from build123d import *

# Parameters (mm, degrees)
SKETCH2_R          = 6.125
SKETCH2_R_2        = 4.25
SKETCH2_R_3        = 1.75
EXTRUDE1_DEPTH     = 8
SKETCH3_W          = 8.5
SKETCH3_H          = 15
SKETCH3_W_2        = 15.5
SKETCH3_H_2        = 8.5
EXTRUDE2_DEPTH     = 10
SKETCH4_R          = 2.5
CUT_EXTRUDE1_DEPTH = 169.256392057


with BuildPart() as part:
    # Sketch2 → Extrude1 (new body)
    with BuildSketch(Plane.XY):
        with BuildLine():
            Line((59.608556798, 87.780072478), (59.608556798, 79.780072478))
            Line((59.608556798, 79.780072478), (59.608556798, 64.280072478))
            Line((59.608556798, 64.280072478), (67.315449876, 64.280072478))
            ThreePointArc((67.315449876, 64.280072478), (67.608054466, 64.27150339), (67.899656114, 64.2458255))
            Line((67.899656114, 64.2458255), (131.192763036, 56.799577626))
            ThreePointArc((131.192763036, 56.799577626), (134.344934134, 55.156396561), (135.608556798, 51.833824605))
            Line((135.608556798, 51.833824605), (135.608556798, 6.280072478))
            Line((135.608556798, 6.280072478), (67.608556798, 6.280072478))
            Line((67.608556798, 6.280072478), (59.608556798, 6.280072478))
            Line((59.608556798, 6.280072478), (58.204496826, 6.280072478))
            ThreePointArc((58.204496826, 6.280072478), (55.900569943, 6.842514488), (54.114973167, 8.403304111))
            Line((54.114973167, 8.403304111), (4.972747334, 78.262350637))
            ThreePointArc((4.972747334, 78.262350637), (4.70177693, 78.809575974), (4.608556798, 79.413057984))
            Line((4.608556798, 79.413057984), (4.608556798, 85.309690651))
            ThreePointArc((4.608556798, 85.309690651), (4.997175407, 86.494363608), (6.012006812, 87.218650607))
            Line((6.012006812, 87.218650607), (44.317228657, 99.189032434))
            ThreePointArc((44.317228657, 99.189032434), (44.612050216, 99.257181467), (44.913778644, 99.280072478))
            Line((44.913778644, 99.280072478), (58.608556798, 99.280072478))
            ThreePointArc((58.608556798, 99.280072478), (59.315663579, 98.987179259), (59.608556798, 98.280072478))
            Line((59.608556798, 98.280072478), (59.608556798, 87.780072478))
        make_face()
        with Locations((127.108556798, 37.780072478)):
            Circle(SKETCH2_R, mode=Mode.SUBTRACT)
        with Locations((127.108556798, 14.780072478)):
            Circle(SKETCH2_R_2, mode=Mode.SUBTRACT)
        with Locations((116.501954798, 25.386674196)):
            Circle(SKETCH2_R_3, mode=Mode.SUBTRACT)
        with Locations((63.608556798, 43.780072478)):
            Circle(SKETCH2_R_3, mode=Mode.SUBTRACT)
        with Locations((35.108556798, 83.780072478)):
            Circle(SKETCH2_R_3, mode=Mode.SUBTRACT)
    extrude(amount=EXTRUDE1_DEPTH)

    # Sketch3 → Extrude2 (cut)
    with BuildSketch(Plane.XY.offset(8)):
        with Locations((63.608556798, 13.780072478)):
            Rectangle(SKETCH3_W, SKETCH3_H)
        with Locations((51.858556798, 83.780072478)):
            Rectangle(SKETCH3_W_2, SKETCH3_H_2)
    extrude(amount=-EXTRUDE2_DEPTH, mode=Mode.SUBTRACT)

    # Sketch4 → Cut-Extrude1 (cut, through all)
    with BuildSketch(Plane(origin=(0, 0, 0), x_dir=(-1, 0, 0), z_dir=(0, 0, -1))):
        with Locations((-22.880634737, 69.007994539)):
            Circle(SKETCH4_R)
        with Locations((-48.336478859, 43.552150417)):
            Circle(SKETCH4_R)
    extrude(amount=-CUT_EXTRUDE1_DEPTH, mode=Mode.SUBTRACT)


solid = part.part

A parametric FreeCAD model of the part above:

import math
import FreeCAD as App
import Part
import Sketcher
from FreeCAD import Vector
Q = App.Units.Quantity

doc = App.newDocument("Part")
params = doc.addObject("Spreadsheet::Sheet", "Params")
for row, (alias, value) in enumerate([
    ("sketch1_radius", "1 mm"),
    ("sketch1_radius2", "2 mm"),
    ("sketch1_radius3", "5 mm"),
    ("sketch1_diameter", "8.5 mm"),
    ("sketch1_diameter2", "3.5 mm"),
    ("pad1_length", "8 mm"),
    ("sketch2_height", "15 mm"),
    ("sketch2_width", "8.5 mm"),
    ("sketch2_width2", "15.5 mm"),
    ("pocket1_length", "10 mm"),
    ("sketch3_diameter", "5 mm"),
], start=1):
    params.set(f"A{row}", alias)
    params.set(f"B{row}", "=" + value)
    params.setAlias(f"B{row}", alias)

body = doc.addObject("PartDesign::Body", "Body")

sketch1 = body.newObject("Sketcher::SketchObject", "Sketch")
sketch1.AttachmentSupport = (doc.getObject("XY_Plane"), [""])
sketch1.MapMode = "FlatFace"
sketch1.addGeometry(Part.LineSegment(Vector(67.31545, 64.280072, 0), Vector(59.608557, 64.280072, 0)), False)
sketch1.addGeometry(Part.LineSegment(Vector(59.608557, 64.280072, 0), Vector(59.608557, 98.280072, 0)), False)
sketch1.addGeometry(Part.ArcOfCircle(Part.Circle(Vector(58.608557, 98.280072, 0), Vector(0, 0, 1), 1), math.radians(0), math.radians(90)), False)
sketch1.addGeometry(Part.LineSegment(Vector(58.608557, 99.280072, 0), Vector(44.913779, 99.280072, 0)), False)
sketch1.addGeometry(Part.ArcOfCircle(Part.Circle(Vector(44.913779, 97.280072, 0), Vector(0, 0, 1), 2), math.radians(90), math.radians(107.354024)), False)
sketch1.addGeometry(Part.LineSegment(Vector(44.317229, 99.189032, 0), Vector(6.012007, 87.218651, 0)), False)
sketch1.addGeometry(Part.ArcOfCircle(Part.Circle(Vector(6.608557, 85.309691, 0), Vector(0, 0, 1), 2), math.radians(107.354025), math.radians(180)), False)
sketch1.addGeometry(Part.LineSegment(Vector(4.608557, 85.309691, 0), Vector(4.608557, 79.413058, 0)), False)
sketch1.addGeometry(Part.ArcOfCircle(Part.Circle(Vector(6.608557, 79.413058, 0), Vector(0, 0, 1), 2), math.radians(180), math.radians(215.124404)), False)
sketch1.addGeometry(Part.LineSegment(Vector(4.972747, 78.262351, 0), Vector(54.114973, 8.403304, 0)), False)
sketch1.addGeometry(Part.ArcOfCircle(Part.Circle(Vector(58.204497, 11.280072, 0), Vector(0, 0, 1), 5), math.radians(-144.875596), math.radians(-90)), False)
sketch1.addGeometry(Part.LineSegment(Vector(58.204497, 6.280072, 0), Vector(135.608557, 6.280072, 0)), False)
sketch1.addGeometry(Part.LineSegment(Vector(135.608557, 6.280072, 0), Vector(135.608557, 51.833825, 0)), False)
sketch1.addGeometry(Part.ArcOfCircle(Part.Circle(Vector(130.608557, 51.833825, 0), Vector(0, 0, 1), 5), math.radians(0), math.radians(83.290163)), False)
sketch1.addGeometry(Part.LineSegment(Vector(131.192763, 56.799578, 0), Vector(67.899656, 64.245825, 0)), False)
sketch1.addGeometry(Part.ArcOfCircle(Part.Circle(Vector(67.31545, 59.280072, 0), Vector(0, 0, 1), 5), math.radians(83.290163), math.radians(90)), False)
sketch1.addGeometry(Part.Circle(Vector(127.108557, 14.780072, 0), Vector(0, 0, 1), 4.25), False)
sketch1.addGeometry(Part.Circle(Vector(116.501955, 25.386674, 0), Vector(0, 0, 1), 1.75), False)
sketch1.addGeometry(Part.Circle(Vector(127.108557, 37.780072, 0), Vector(0, 0, 1), 6.125), False)
sketch1.addGeometry(Part.Circle(Vector(63.608557, 43.780072, 0), Vector(0, 0, 1), 1.75), False)
sketch1.addGeometry(Part.Circle(Vector(35.108557, 83.780072, 0), Vector(0, 0, 1), 1.75), False)
sketch1.addConstraint(Sketcher.Constraint("Coincident", 0, 2, 1, 1))
sketch1.addConstraint(Sketcher.Constraint("Tangent", 1, 2, 2, 1))
sketch1.addConstraint(Sketcher.Constraint("Tangent", 2, 2, 3, 1))
sketch1.addConstraint(Sketcher.Constraint("Tangent", 3, 2, 4, 1))
sketch1.addConstraint(Sketcher.Constraint("Tangent", 4, 2, 5, 1))
sketch1.addConstraint(Sketcher.Constraint("Tangent", 5, 2, 6, 1))
sketch1.addConstraint(Sketcher.Constraint("Tangent", 6, 2, 7, 1))
sketch1.addConstraint(Sketcher.Constraint("Tangent", 7, 2, 8, 1))
sketch1.addConstraint(Sketcher.Constraint("Tangent", 8, 2, 9, 1))
sketch1.addConstraint(Sketcher.Constraint("Tangent", 9, 2, 10, 1))
sketch1.addConstraint(Sketcher.Constraint("Tangent", 10, 2, 11, 1))
sketch1.addConstraint(Sketcher.Constraint("Coincident", 11, 2, 12, 1))
sketch1.addConstraint(Sketcher.Constraint("Tangent", 12, 2, 13, 1))
sketch1.addConstraint(Sketcher.Constraint("Tangent", 13, 2, 14, 1))
sketch1.addConstraint(Sketcher.Constraint("Tangent", 14, 2, 15, 1))
sketch1.addConstraint(Sketcher.Constraint("Tangent", 15, 2, 0, 1))
sketch1.addConstraint(Sketcher.Constraint("Horizontal", 0))
sketch1.addConstraint(Sketcher.Constraint("Vertical", 1))
sketch1.addConstraint(Sketcher.Constraint("Horizontal", 3))
sketch1.addConstraint(Sketcher.Constraint("Vertical", 7))
sketch1.addConstraint(Sketcher.Constraint("Horizontal", 11))
sketch1.addConstraint(Sketcher.Constraint("Vertical", 12))
sketch1.addConstraint(Sketcher.Constraint("Equal", 4, 6))
sketch1.addConstraint(Sketcher.Constraint("Equal", 6, 8))
sketch1.addConstraint(Sketcher.Constraint("Equal", 10, 13))
sketch1.addConstraint(Sketcher.Constraint("Equal", 13, 15))
sketch1.addConstraint(Sketcher.Constraint("Equal", 17, 19))
sketch1.addConstraint(Sketcher.Constraint("Equal", 19, 20))
sketch1.addConstraint(Sketcher.Constraint("Vertical", 16, 3, 18, 3))
sketch1.addConstraint(Sketcher.Constraint("Radius", 2, Q("1 mm")))
sketch1.addConstraint(Sketcher.Constraint("Radius", 4, Q("2 mm")))
sketch1.addConstraint(Sketcher.Constraint("Radius", 10, Q("5 mm")))
sketch1.addConstraint(Sketcher.Constraint("Diameter", 16, Q("8.5 mm")))
sketch1.addConstraint(Sketcher.Constraint("Diameter", 17, Q("3.5 mm")))
sketch1.addConstraint(Sketcher.Constraint("Diameter", 18, Q("12.25 mm")))
sketch1.addConstraint(Sketcher.Constraint("DistanceY", 1, 1, 1, 2, Q("34 mm")))
sketch1.addConstraint(Sketcher.Constraint("DistanceX", 6, 3, 2, 3, Q("52 mm")))
sketch1.addConstraint(Sketcher.Constraint("DistanceY", 10, 3, 2, 3, Q("87 mm")))
sketch1.addConstraint(Sketcher.Constraint("DistanceX", 2, 3, 13, 3, Q("72 mm")))
sketch1.addConstraint(Sketcher.Constraint("DistanceY", 16, 3, 18, 3, Q("23 mm")))
sketch1.addConstraint(Sketcher.Constraint("DistanceX", 2, 3, 19, 3, Q("5 mm")))
sketch1.addConstraint(Sketcher.Constraint("DistanceX", 16, 3, 13, 3, Q("3.5 mm")))
sketch1.addConstraint(Sketcher.Constraint("DistanceY", 10, 3, 16, 3, Q("3.5 mm")))
sketch1.addConstraint(Sketcher.Constraint("DistanceY", 19, 3, 15, 3, Q("15.5 mm")))
sketch1.addConstraint(Sketcher.Constraint("DistanceY", 20, 3, 4, 3, Q("13.5 mm")))
sketch1.addConstraint(Sketcher.Constraint("DistanceX", 20, 3, 2, 3, Q("23.5 mm")))
sketch1.addConstraint(Sketcher.Constraint("DistanceX", 3, 2, 3, 1, Q("13.694778 mm")))
sketch1.addConstraint(Sketcher.Constraint("DistanceX", 11, 1, 11, 2, Q("77.40406 mm")))
sketch1.addConstraint(Sketcher.Constraint("DistanceX", 17, 3, 16, 3, Q("10.606602 mm")))
sketch1.addConstraint(Sketcher.Constraint("DistanceY", 16, 3, 17, 3, Q("10.606602 mm")))
sketch1.addConstraint(Sketcher.Constraint("DistanceY", 8, 2, 5, 2, Q("8.9563 mm")))
sketch1.addConstraint(Sketcher.Constraint("DistanceX", 0, 2, 14, 2, Q("8.291099 mm")))
sketch1.addConstraint(Sketcher.Constraint("DistanceX", 0, 2, 0, 1, Q("7.706893 mm")))
sketch1.addConstraint(Sketcher.Constraint("DistanceX", -1, 1, 4, 3, Q("44.913779 mm")))
sketch1.addConstraint(Sketcher.Constraint("DistanceY", -1, 1, 6, 3, Q("85.309691 mm")))
sketch1.addConstraint(Sketcher.Constraint("DistanceX", -1, 1, 4, 2, Q("44.317229 mm")))
sketch1.setExpression("Constraints[29]", "Params.sketch1_radius")
sketch1.setExpression("Constraints[30]", "Params.sketch1_radius2")
sketch1.setExpression("Constraints[31]", "Params.sketch1_radius3")
sketch1.setExpression("Constraints[32]", "Params.sketch1_diameter")
sketch1.setExpression("Constraints[33]", "Params.sketch1_diameter2")
pad1 = body.newObject("PartDesign::Pad", "Pad")
pad1.Profile = sketch1
pad1.setExpression("Length", "Params.pad1_length")

sketch2 = body.newObject("Sketcher::SketchObject", "Sketch001")
sketch2.AttachmentSupport = (doc.getObject("XY_Plane"), [""])
sketch2.MapMode = "FlatFace"
sketch2.AttachmentOffset = App.Placement(Vector(0, 0, 8), App.Rotation())
sketch2.addGeometry(Part.LineSegment(Vector(59.358557, 21.280072, 0), Vector(59.358557, 6.280072, 0)), False)
sketch2.addGeometry(Part.LineSegment(Vector(59.358557, 6.280072, 0), Vector(67.858557, 6.280072, 0)), False)
sketch2.addGeometry(Part.LineSegment(Vector(67.858557, 6.280072, 0), Vector(67.858557, 21.280072, 0)), False)
sketch2.addGeometry(Part.LineSegment(Vector(67.858557, 21.280072, 0), Vector(59.358557, 21.280072, 0)), False)
sketch2.addGeometry(Part.LineSegment(Vector(44.108557, 88.030072, 0), Vector(44.108557, 79.530072, 0)), False)
sketch2.addGeometry(Part.LineSegment(Vector(44.108557, 79.530072, 0), Vector(59.608557, 79.530072, 0)), False)
sketch2.addGeometry(Part.LineSegment(Vector(59.608557, 79.530072, 0), Vector(59.608557, 88.030072, 0)), False)
sketch2.addGeometry(Part.LineSegment(Vector(59.608557, 88.030072, 0), Vector(44.108557, 88.030072, 0)), False)
sketch2.addConstraint(Sketcher.Constraint("Coincident", 0, 2, 1, 1))
sketch2.addConstraint(Sketcher.Constraint("Coincident", 1, 2, 2, 1))
sketch2.addConstraint(Sketcher.Constraint("Coincident", 2, 2, 3, 1))
sketch2.addConstraint(Sketcher.Constraint("Coincident", 3, 2, 0, 1))
sketch2.addConstraint(Sketcher.Constraint("Coincident", 4, 2, 5, 1))
sketch2.addConstraint(Sketcher.Constraint("Coincident", 5, 2, 6, 1))
sketch2.addConstraint(Sketcher.Constraint("Coincident", 6, 2, 7, 1))
sketch2.addConstraint(Sketcher.Constraint("Coincident", 7, 2, 4, 1))
sketch2.addConstraint(Sketcher.Constraint("Vertical", 0))
sketch2.addConstraint(Sketcher.Constraint("Horizontal", 1))
sketch2.addConstraint(Sketcher.Constraint("Vertical", 2))
sketch2.addConstraint(Sketcher.Constraint("Horizontal", 3))
sketch2.addConstraint(Sketcher.Constraint("Vertical", 4))
sketch2.addConstraint(Sketcher.Constraint("Horizontal", 5))
sketch2.addConstraint(Sketcher.Constraint("Vertical", 6))
sketch2.addConstraint(Sketcher.Constraint("Horizontal", 7))
sketch2.addConstraint(Sketcher.Constraint("Equal", 3, 4))
sketch2.addConstraint(Sketcher.Constraint("DistanceY", 0, 2, 0, 1, Q("15 mm")))
sketch2.addConstraint(Sketcher.Constraint("DistanceX", 1, 1, 1, 2, Q("8.5 mm")))
sketch2.addConstraint(Sketcher.Constraint("DistanceX", 5, 1, 5, 2, Q("15.5 mm")))
sketch2.addConstraint(Sketcher.Constraint("DistanceX", 4, 2, 3, 2, Q("15.25 mm")))
sketch2.addConstraint(Sketcher.Constraint("DistanceY", 3, 2, 4, 2, Q("58.25 mm")))
sketch2.addConstraint(Sketcher.Constraint("DistanceX", -1, 1, 0, 2, Q("59.358557 mm")))
sketch2.addConstraint(Sketcher.Constraint("DistanceY", -1, 1, 0, 2, Q("6.280072 mm")))
sketch2.setExpression("Constraints[17]", "Params.sketch2_height")
sketch2.setExpression("Constraints[18]", "Params.sketch2_width")
sketch2.setExpression("Constraints[19]", "Params.sketch2_width2")
pocket1 = body.newObject("PartDesign::Pocket", "Pocket")
pocket1.Profile = sketch2
pocket1.setExpression("Length", "Params.pocket1_length")

sketch3 = body.newObject("Sketcher::SketchObject", "Sketch002")
sketch3.AttachmentSupport = (doc.getObject("XY_Plane"), [""])
sketch3.MapMode = "FlatFace"
sketch3.addGeometry(Part.Circle(Vector(22.880635, 69.007995, 0), Vector(0, 0, 1), 2.5), False)
sketch3.addGeometry(Part.Circle(Vector(48.336479, 43.55215, 0), Vector(0, 0, 1), 2.5), False)
sketch3.addConstraint(Sketcher.Constraint("Equal", 0, 1))
sketch3.addConstraint(Sketcher.Constraint("Diameter", 0, Q("5 mm")))
sketch3.addConstraint(Sketcher.Constraint("DistanceX", -1, 1, 1, 3, Q("48.336479 mm")))
sketch3.addConstraint(Sketcher.Constraint("DistanceY", -1, 1, 1, 3, Q("43.55215 mm")))
sketch3.addConstraint(Sketcher.Constraint("DistanceX", -1, 1, 0, 3, Q("22.880635 mm")))
sketch3.addConstraint(Sketcher.Constraint("DistanceY", -1, 1, 0, 3, Q("69.007995 mm")))
sketch3.setExpression("Constraints[1]", "Params.sketch3_diameter")
pocket2 = body.newObject("PartDesign::Pocket", "Pocket001")
pocket2.Profile = sketch3
pocket2.Type = "ThroughAll"
pocket2.Reversed = True

doc.recompute()
